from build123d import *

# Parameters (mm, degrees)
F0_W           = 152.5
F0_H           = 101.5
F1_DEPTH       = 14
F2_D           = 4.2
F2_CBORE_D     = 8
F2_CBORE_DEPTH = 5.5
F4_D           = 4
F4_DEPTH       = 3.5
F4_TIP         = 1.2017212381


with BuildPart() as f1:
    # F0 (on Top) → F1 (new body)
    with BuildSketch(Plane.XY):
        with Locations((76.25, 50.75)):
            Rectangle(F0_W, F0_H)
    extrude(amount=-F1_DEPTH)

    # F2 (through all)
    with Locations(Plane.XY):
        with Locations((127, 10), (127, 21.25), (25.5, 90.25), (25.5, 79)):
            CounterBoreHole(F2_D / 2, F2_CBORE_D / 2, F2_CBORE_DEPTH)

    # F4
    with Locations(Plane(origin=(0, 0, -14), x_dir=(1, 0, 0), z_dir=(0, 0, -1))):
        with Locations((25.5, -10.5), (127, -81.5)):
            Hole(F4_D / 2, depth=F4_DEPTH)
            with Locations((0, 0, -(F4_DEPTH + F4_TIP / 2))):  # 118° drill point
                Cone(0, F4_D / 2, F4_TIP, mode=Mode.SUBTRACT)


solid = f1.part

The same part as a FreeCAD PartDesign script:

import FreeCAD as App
import Part
import Sketcher
from FreeCAD import Vector


def add_polygon(sketch, points):
    """Adds a closed chain of lines whose ends are joined by coincident constraints."""
    first, n = sketch.GeometryCount, len(points)
    for a, b in zip(points, points[1:] + points[:1]):
        sketch.addGeometry(Part.LineSegment(App.Vector(*a, 0), App.Vector(*b, 0)), False)
    for i in range(n):
        sketch.addConstraint(Sketcher.Constraint("Coincident", first + i, 2, first + (i + 1) % n, 1))

doc = App.newDocument("Part")
params = doc.addObject("Spreadsheet::Sheet", "Params")
for row, (alias, value) in enumerate([
    ("sketch1_width", "152.5 mm"),
    ("sketch1_height", "101.5 mm"),
    ("pad1_length", "14 mm"),
    ("sketch2_diameter", "4.2 mm"),
    ("hole_diameter", "4.2 mm"),
    ("hole_cbore_diameter", "8 mm"),
    ("hole_cbore_depth", "5.5 mm"),
    ("sketch3_diameter", "4 mm"),
    ("hole2_diameter", "4 mm"),
    ("hole2_depth", "3.5 mm"),
], start=1):
    params.set(f"A{row}", alias)
    params.set(f"B{row}", "=" + value)
    params.setAlias(f"B{row}", alias)

body = doc.addObject("PartDesign::Body", "Body")

sketch1 = body.newObject("Sketcher::SketchObject", "Sketch")
sketch1.AttachmentSupport = (doc.getObject("XY_Plane"), [""])
sketch1.MapMode = "FlatFace"
add_polygon(sketch1, [(0, 102), (0, 0), (152, 0), (152, 102)])
sketch1.addConstraint([
    Sketcher.Constraint("Vertical", 0),
    Sketcher.Constraint("Horizontal", 1),
    Sketcher.Constraint("Vertical", 2),
    Sketcher.Constraint("Horizontal", 3),
    Sketcher.Constraint("Coincident", 0, 2, -1, 1),
    Sketcher.Constraint("DistanceX", 1, 1, 1, 2, 152.5),
    Sketcher.Constraint("DistanceY", 0, 2, 0, 1, 101.5),
])
sketch1.setExpression("Constraints[9]", "Params.sketch1_width")
sketch1.setExpression("Constraints[10]", "Params.sketch1_height")
pad1 = body.newObject("PartDesign::Pad", "Pad")
pad1.Profile = sketch1
pad1.setExpression("Length", "Params.pad1_length")
pad1.Reversed = True

sketch2 = body.newObject("Sketcher::SketchObject", "Sketch001")
sketch2.AttachmentSupport = (doc.getObject("XY_Plane"), [""])
sketch2.MapMode = "FlatFace"
sketch2.addGeometry([
    Part.Circle(Vector(127, 10, 0), Vector(0, 0, 1), 2.1),
    Part.Circle(Vector(127, 21.2, 0), Vector(0, 0, 1), 2.1),
    Part.Circle(Vector(25.5, 90.2, 0), Vector(0, 0, 1), 2.1),
    Part.Circle(Vector(25.5, 79, 0), Vector(0, 0, 1), 2.1),
], False)
sketch2.addConstraint([
    Sketcher.Constraint("Equal", 0, 1),
    Sketcher.Constraint("Equal", 1, 2),
    Sketcher.Constraint("Equal", 2, 3),
    Sketcher.Constraint("Vertical", 0, 3, 1, 3),
    Sketcher.Constraint("Vertical", 2, 3, 3, 3),
    Sketcher.Constraint("Diameter", 0, 4.2),
    Sketcher.Constraint("DistanceX", -1, 1, 0, 3, 127.0),
    Sketcher.Constraint("DistanceY", -1, 1, 0, 3, 10.0),
    Sketcher.Constraint("DistanceY", -1, 1, 3, 3, 79.0),
    Sketcher.Constraint("DistanceY", 1, 3, 2, 3, 69.0),
    Sketcher.Constraint("DistanceX", -1, 1, 2, 3, 25.5),
    Sketcher.Constraint("DistanceY", -1, 1, 1, 3, 21.25),
])
sketch2.setExpression("Constraints[5]", "Params.sketch2_diameter")
doc.recompute()
hole = body.newObject("PartDesign::Hole", "Hole")
hole.Profile = sketch2
hole.ThreadType = "None"
hole.setExpression("Diameter", "Params.hole_diameter")
hole.DepthType = "ThroughAll"
hole.HoleCutType = "Counterbore"
hole.setExpression("HoleCutDiameter", "Params.hole_cbore_diameter")
hole.setExpression("HoleCutDepth", "Params.hole_cbore_depth")

sketch3 = body.newObject("Sketcher::SketchObject", "Sketch002")
sketch3.AttachmentSupport = (doc.getObject("XY_Plane"), [""])
sketch3.MapMode = "FlatFace"
sketch3.AttachmentOffset = App.Placement(Vector(0, 0, -14), App.Rotation())
sketch3.addGeometry([
    Part.Circle(Vector(25.5, 10.5, 0), Vector(0, 0, 1), 2),
    Part.Circle(Vector(127, 81.5, 0), Vector(0, 0, 1), 2),
], False)
sketch3.addConstraint([
    Sketcher.Constraint("Equal", 0, 1),
    Sketcher.Constraint("Diameter", 0, 4.0),
    Sketcher.Constraint("DistanceX", -1, 1, 1, 3, 127.0),
    Sketcher.Constraint("DistanceY", 0, 3, 1, 3, 71.0),
    Sketcher.Constraint("DistanceX", -1, 1, 0, 3, 25.5),
    Sketcher.Constraint("DistanceY", -1, 1, 0, 3, 10.5),
])
sketch3.setExpression("Constraints[1]", "Params.sketch3_diameter")
doc.recompute()
hole2 = body.newObject("PartDesign::Hole", "Hole001")
hole2.Profile = sketch3
hole2.ThreadType = "None"
hole2.setExpression("Diameter", "Params.hole2_diameter")
hole2.DepthType = "Dimension"
hole2.setExpression("Depth", "Params.hole2_depth")
hole2.DrillPoint = "Angled"
hole2.DrillPointAngle = 118
hole2.Reversed = True

doc.recompute()
